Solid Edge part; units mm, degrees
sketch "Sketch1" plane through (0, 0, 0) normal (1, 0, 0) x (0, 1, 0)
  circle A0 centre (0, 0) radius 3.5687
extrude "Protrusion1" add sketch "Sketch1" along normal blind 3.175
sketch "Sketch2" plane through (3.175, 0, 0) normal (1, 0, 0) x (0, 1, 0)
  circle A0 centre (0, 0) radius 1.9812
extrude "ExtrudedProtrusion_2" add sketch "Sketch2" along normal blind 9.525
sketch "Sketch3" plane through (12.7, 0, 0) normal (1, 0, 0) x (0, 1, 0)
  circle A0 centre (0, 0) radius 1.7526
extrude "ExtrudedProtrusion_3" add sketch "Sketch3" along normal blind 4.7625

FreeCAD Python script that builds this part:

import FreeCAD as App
import Part
import Sketcher

V = App.Vector
Q = App.Units.Quantity

doc = App.newDocument("Part")
body = doc.addObject("PartDesign::Body", "Body")

# Sketch on YZ plane
sketch1 = body.newObject("Sketcher::SketchObject", "Sketch")
sketch1.AttachmentSupport = (doc.getObject("YZ_Plane"), [""])
sketch1.MapMode = "FlatFace"
sketch1.addGeometry(Part.Circle(V(0, 0, 0), V(0, 0, 1), 3.5687), False)
sketch1.addConstraint(Sketcher.Constraint("Coincident", 0, 3, -1, 1))
sketch1.addConstraint(Sketcher.Constraint("Diameter", 0, Q("0.281 in")))
pad1 = body.newObject("PartDesign::Pad", "Pad")
pad1.Profile = sketch1
pad1.Length = Q("0.125 in")

# Sketch on YZ plane
sketch2 = body.newObject("Sketcher::SketchObject", "Sketch001")
sketch2.AttachmentSupport = (doc.getObject("YZ_Plane"), [""])
sketch2.MapMode = "FlatFace"
sketch2.AttachmentOffset = App.Placement(V(0, 0, 0.125 * 25.4), App.Rotation())
sketch2.addGeometry(Part.Circle(V(0, 0, 0), V(0, 0, 1), 1.9812), False)
sketch2.addConstraint(Sketcher.Constraint("Coincident", 0, 3, -1, 1))
sketch2.addConstraint(Sketcher.Constraint("Diameter", 0, Q("0.156 in")))
pad2 = body.newObject("PartDesign::Pad", "Pad001")
pad2.Profile = sketch2
pad2.Length = Q("0.375 in")

# Sketch on YZ plane
sketch3 = body.newObject("Sketcher::SketchObject", "Sketch002")
sketch3.AttachmentSupport = (doc.getObject("YZ_Plane"), [""])
sketch3.MapMode = "FlatFace"
sketch3.AttachmentOffset = App.Placement(V(0, 0, 0.5 * 25.4), App.Rotation())
sketch3.addGeometry(Part.Circle(V(0, 0, 0), V(0, 0, 1), 1.7526), False)
sketch3.addConstraint(Sketcher.Constraint("Coincident", 0, 3, -1, 1))
sketch3.addConstraint(Sketcher.Constraint("Diameter", 0, Q("0.138 in")))
pad3 = body.newObject("PartDesign::Pad", "Pad002")
pad3.Profile = sketch3
pad3.Length = Q("0.1875 in")

doc.recompute()
